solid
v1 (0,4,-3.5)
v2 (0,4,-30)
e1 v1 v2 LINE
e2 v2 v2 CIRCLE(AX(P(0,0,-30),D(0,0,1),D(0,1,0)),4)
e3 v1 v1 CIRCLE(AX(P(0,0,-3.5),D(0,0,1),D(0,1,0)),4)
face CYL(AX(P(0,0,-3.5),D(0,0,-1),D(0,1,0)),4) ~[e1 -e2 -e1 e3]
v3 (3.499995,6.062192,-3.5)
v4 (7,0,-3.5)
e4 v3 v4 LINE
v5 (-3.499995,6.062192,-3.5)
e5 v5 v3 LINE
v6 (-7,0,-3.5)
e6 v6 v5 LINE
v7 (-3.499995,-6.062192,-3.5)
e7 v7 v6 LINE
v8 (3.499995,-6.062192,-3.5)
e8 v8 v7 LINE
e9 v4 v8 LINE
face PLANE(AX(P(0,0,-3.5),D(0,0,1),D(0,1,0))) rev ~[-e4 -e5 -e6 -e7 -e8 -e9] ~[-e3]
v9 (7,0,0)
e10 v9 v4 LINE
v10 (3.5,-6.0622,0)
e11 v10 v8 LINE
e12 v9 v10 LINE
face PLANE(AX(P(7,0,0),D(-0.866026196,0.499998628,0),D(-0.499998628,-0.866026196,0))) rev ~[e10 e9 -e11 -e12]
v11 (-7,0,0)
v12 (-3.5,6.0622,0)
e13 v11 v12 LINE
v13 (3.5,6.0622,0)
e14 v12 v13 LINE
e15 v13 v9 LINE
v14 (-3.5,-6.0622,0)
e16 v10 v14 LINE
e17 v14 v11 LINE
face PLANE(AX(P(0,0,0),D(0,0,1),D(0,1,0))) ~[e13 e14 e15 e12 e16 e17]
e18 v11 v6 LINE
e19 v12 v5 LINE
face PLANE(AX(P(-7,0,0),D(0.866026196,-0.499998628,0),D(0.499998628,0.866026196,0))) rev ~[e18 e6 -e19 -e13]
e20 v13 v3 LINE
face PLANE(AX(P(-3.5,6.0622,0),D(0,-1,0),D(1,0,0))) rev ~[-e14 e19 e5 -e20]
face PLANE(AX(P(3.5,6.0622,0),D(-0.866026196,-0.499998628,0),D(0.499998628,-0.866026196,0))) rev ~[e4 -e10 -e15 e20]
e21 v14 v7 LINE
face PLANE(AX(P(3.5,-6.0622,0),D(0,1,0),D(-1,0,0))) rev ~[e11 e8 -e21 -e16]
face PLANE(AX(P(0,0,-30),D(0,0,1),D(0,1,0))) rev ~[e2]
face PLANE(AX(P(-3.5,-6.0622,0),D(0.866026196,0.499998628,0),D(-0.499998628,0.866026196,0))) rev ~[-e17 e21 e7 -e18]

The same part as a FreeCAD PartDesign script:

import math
import FreeCAD as App
import Part
import Sketcher

doc = App.newDocument("Part")
body = doc.addObject("PartDesign::Body", "Body")

sketch1 = body.newObject("Sketcher::SketchObject", "Sketch")
sketch1.AttachmentSupport = (doc.getObject("YZ_Plane"), [""])
sketch1.MapMode = "FlatFace"
sketch1.addGeometry([
    Part.LineSegment(App.Vector(7, 0, 0), App.Vector(0, 0, 0)),
    Part.LineSegment(App.Vector(0, 0, 0), App.Vector(0, -30, 0)),
    Part.LineSegment(App.Vector(0, -30, 0), App.Vector(4, -30, 0)),
    Part.LineSegment(App.Vector(4, -30, 0), App.Vector(4, -3.5, 0)),
    Part.LineSegment(App.Vector(4, -3.5, 0), App.Vector(7, -3.5, 0)),
    Part.LineSegment(App.Vector(7, -3.5, 0), App.Vector(7, 0, 0)),
], False)
sketch1.addConstraint([
    Sketcher.Constraint("Coincident", 0, 2, 1, 1),
    Sketcher.Constraint("Coincident", 1, 2, 2, 1),
    Sketcher.Constraint("Coincident", 2, 2, 3, 1),
    Sketcher.Constraint("Coincident", 3, 2, 4, 1),
    Sketcher.Constraint("Coincident", 4, 2, 5, 1),
    Sketcher.Constraint("Coincident", 5, 2, 0, 1),
    Sketcher.Constraint("Horizontal", 0),
    Sketcher.Constraint("Vertical", 1),
    Sketcher.Constraint("Horizontal", 2),
    Sketcher.Constraint("Vertical", 3),
    Sketcher.Constraint("Horizontal", 4),
    Sketcher.Constraint("Vertical", 5),
    Sketcher.Constraint("Coincident", 0, 2, -1, 1),
    Sketcher.Constraint("DistanceX", 0, 2, 0, 1, 7.0),
    Sketcher.Constraint("DistanceX", 2, 1, 2, 2, 4.0),
    Sketcher.Constraint("DistanceY", 1, 2, 1, 1, 30.0),
    Sketcher.Constraint("DistanceY", 5, 1, 5, 2, 3.5),
])
revolution = body.newObject("PartDesign::Revolution", "Revolution")
revolution.Profile = sketch1
revolution.ReferenceAxis = (sketch1, ["V_Axis"])
revolution.Angle = 360

sketch2 = body.newObject("Sketcher::SketchObject", "Sketch001")
sketch2.AttachmentSupport = (doc.getObject("XY_Plane"), [""])
sketch2.MapMode = "FlatFace"
sketch2.addGeometry([
    Part.LineSegment(App.Vector(4, 6, 0), App.Vector(7, 0, 0)),
    Part.ArcOfCircle(Part.Circle(App.Vector(0, 0, 0), App.Vector(0, 0, 1), 7), math.radians(0), math.radians(60)),
    Part.ArcOfCircle(Part.Circle(App.Vector(0, 0, 0), App.Vector(0, 0, 1), 7), math.radians(-60), math.radians(0)),
    Part.LineSegment(App.Vector(7, 0, 0), App.Vector(4, -6, 0)),
    Part.LineSegment(App.Vector(-4, 6, 0), App.Vector(4, 6, 0)),
    Part.ArcOfCircle(Part.Circle(App.Vector(0, 0, 0), App.Vector(0, 0, 1), 7), math.radians(60), math.radians(120)),
    Part.ArcOfCircle(Part.Circle(App.Vector(0, 0, 0), App.Vector(0, 0, 1), 7), math.radians(-120), math.radians(-60)),
    Part.LineSegment(App.Vector(-4, -6, 0), App.Vector(4, -6, 0)),
    Part.LineSegment(App.Vector(-4, -6, 0), App.Vector(-7, 0, 0)),
    Part.ArcOfCircle(Part.Circle(App.Vector(0, 0, 0), App.Vector(0, 0, 1), 7), math.radians(180), math.radians(240)),
    Part.ArcOfCircle(Part.Circle(App.Vector(0, 0, 0), App.Vector(0, 0, 1), 7), math.radians(120), math.radians(180)),
    Part.LineSegment(App.Vector(-7, 0, 0), App.Vector(-4, 6, 0)),
], False)
sketch2.addConstraint([
    Sketcher.Constraint("Coincident", 0, 1, 1, 2),
    Sketcher.Constraint("Coincident", 1, 1, 0, 2),
    Sketcher.Constraint("Coincident", 2, 1, 3, 2),
    Sketcher.Constraint("Coincident", 3, 1, 2, 2),
    Sketcher.Constraint("Coincident", 4, 1, 5, 2),
    Sketcher.Constraint("Coincident", 5, 1, 4, 2),
    Sketcher.Constraint("Coincident", 6, 1, 7, 1),
    Sketcher.Constraint("Coincident", 7, 2, 6, 2),
    Sketcher.Constraint("Coincident", 8, 1, 9, 2),
    Sketcher.Constraint("Coincident", 9, 1, 8, 2),
    Sketcher.Constraint("Coincident", 10, 1, 11, 2),
    Sketcher.Constraint("Coincident", 11, 1, 10, 2),
    Sketcher.Constraint("Horizontal", 4),
    Sketcher.Constraint("Horizontal", 7),
    Sketcher.Constraint("Coincident", 1, 3, -1, 1),
    Sketcher.Constraint("Coincident", 2, 3, -1, 1),
    Sketcher.Constraint("Coincident", 5, 3, -1, 1),
    Sketcher.Constraint("Coincident", 6, 3, -1, 1),
    Sketcher.Constraint("Coincident", 9, 3, -1, 1),
    Sketcher.Constraint("Coincident", 10, 3, -1, 1),
    Sketcher.Constraint("Coincident", 3, 1, 1, 1),
    Sketcher.Constraint("Coincident", 5, 1, 0, 1),
    Sketcher.Constraint("Coincident", 7, 2, 2, 1),
    Sketcher.Constraint("Coincident", 8, 1, 6, 1),
    Sketcher.Constraint("Coincident", 10, 1, 4, 1),
    Sketcher.Constraint("PointOnObject", 1, 1, -1),
    Sketcher.Constraint("PointOnObject", 9, 1, -1),
    Sketcher.Constraint("PointOnObject", 11, 1, -1),
    Sketcher.Constraint("Parallel", 0, 8),
    Sketcher.Constraint("Radius", 1, 7.0),
    Sketcher.Constraint("DistanceX", 4, 1, 4, 2, 7.0),
])
pocket1 = body.newObject("PartDesign::Pocket", "Pocket")
pocket1.Profile = sketch2
pocket1.Length = 10

doc.recompute()
